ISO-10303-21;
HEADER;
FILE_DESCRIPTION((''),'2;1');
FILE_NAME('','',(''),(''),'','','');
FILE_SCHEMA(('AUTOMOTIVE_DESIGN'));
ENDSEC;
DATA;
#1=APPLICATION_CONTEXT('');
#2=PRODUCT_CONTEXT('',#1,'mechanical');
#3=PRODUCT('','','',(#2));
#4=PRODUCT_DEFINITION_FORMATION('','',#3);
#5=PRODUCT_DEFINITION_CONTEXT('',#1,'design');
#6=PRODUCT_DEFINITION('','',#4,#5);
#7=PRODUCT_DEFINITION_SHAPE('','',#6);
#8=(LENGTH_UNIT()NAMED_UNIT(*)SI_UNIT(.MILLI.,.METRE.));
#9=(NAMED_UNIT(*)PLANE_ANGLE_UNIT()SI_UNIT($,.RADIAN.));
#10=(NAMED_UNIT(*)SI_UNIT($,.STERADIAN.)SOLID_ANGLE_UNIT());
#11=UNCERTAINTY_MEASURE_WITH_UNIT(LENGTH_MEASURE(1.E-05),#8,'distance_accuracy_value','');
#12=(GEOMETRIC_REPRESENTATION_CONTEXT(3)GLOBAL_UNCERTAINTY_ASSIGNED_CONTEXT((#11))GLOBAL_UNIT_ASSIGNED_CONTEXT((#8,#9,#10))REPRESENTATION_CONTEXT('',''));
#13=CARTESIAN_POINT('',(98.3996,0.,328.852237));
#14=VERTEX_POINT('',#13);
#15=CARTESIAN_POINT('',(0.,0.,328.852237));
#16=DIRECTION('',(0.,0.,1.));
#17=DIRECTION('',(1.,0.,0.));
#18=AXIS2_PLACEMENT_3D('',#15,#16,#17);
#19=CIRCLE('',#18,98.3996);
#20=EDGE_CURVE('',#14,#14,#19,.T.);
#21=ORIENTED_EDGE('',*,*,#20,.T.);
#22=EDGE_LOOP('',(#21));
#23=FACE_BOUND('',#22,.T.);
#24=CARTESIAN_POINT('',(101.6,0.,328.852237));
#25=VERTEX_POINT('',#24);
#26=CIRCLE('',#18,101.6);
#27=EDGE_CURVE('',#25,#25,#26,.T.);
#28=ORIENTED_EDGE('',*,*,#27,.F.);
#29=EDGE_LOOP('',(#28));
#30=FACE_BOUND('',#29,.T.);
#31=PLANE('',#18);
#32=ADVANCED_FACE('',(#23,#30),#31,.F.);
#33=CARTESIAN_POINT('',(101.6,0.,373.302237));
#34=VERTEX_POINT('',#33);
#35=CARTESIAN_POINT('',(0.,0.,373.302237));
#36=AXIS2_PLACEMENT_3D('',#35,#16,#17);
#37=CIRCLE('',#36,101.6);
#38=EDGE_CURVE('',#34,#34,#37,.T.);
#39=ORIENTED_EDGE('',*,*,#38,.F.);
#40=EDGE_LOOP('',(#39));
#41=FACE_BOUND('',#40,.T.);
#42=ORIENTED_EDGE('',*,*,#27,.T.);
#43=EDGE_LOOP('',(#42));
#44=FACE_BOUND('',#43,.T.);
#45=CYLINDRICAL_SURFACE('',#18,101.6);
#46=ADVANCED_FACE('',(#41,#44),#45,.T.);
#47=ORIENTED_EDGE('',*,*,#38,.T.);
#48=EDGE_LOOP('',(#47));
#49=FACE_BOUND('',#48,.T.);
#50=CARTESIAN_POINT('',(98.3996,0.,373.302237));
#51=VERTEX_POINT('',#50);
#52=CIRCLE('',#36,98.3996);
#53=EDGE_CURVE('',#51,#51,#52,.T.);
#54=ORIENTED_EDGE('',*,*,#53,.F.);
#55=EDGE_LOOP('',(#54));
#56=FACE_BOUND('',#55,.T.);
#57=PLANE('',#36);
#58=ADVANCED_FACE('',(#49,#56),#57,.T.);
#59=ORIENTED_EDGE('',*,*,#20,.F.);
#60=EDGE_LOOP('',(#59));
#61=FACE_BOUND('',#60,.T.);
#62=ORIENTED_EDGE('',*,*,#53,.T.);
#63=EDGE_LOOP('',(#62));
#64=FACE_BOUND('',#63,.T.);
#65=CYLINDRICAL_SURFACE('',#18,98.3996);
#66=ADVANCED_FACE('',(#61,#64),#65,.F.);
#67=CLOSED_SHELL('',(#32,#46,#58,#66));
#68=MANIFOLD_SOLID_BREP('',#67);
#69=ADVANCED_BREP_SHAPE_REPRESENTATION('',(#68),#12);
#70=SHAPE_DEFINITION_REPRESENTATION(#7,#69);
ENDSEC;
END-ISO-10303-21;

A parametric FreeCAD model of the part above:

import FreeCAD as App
import Part
import Sketcher
from FreeCAD import Vector
Q = App.Units.Quantity

doc = App.newDocument("Part")
body = doc.addObject("PartDesign::Body", "Body")

# Sketch on XY plane
sketch1 = body.newObject("Sketcher::SketchObject", "Sketch")
sketch1.AttachmentSupport = (doc.getObject("XY_Plane"), [""])
sketch1.MapMode = "FlatFace"
sketch1.AttachmentOffset = App.Placement(Vector(0, 0, 373.302237), App.Rotation())
sketch1.addGeometry([
    Part.Circle(Vector(0, 0, 0), Vector(0, 0, 1), 102),
    Part.Circle(Vector(0, 0, 0), Vector(0, 0, 1), 98),
], False)
sketch1.addConstraint([
    Sketcher.Constraint("Coincident", 0, 3, -1, 1),
    Sketcher.Constraint("Coincident", 1, 3, -1, 1),
    Sketcher.Constraint("Diameter", 0, Q("8 in")),
    Sketcher.Constraint("Diameter", 1, Q("7.748 in")),
])
pad1 = body.newObject("PartDesign::Pad", "Pad")
pad1.Profile = sketch1
pad1.Length = Q("1.75 in")
pad1.Reversed = True

doc.recompute()
